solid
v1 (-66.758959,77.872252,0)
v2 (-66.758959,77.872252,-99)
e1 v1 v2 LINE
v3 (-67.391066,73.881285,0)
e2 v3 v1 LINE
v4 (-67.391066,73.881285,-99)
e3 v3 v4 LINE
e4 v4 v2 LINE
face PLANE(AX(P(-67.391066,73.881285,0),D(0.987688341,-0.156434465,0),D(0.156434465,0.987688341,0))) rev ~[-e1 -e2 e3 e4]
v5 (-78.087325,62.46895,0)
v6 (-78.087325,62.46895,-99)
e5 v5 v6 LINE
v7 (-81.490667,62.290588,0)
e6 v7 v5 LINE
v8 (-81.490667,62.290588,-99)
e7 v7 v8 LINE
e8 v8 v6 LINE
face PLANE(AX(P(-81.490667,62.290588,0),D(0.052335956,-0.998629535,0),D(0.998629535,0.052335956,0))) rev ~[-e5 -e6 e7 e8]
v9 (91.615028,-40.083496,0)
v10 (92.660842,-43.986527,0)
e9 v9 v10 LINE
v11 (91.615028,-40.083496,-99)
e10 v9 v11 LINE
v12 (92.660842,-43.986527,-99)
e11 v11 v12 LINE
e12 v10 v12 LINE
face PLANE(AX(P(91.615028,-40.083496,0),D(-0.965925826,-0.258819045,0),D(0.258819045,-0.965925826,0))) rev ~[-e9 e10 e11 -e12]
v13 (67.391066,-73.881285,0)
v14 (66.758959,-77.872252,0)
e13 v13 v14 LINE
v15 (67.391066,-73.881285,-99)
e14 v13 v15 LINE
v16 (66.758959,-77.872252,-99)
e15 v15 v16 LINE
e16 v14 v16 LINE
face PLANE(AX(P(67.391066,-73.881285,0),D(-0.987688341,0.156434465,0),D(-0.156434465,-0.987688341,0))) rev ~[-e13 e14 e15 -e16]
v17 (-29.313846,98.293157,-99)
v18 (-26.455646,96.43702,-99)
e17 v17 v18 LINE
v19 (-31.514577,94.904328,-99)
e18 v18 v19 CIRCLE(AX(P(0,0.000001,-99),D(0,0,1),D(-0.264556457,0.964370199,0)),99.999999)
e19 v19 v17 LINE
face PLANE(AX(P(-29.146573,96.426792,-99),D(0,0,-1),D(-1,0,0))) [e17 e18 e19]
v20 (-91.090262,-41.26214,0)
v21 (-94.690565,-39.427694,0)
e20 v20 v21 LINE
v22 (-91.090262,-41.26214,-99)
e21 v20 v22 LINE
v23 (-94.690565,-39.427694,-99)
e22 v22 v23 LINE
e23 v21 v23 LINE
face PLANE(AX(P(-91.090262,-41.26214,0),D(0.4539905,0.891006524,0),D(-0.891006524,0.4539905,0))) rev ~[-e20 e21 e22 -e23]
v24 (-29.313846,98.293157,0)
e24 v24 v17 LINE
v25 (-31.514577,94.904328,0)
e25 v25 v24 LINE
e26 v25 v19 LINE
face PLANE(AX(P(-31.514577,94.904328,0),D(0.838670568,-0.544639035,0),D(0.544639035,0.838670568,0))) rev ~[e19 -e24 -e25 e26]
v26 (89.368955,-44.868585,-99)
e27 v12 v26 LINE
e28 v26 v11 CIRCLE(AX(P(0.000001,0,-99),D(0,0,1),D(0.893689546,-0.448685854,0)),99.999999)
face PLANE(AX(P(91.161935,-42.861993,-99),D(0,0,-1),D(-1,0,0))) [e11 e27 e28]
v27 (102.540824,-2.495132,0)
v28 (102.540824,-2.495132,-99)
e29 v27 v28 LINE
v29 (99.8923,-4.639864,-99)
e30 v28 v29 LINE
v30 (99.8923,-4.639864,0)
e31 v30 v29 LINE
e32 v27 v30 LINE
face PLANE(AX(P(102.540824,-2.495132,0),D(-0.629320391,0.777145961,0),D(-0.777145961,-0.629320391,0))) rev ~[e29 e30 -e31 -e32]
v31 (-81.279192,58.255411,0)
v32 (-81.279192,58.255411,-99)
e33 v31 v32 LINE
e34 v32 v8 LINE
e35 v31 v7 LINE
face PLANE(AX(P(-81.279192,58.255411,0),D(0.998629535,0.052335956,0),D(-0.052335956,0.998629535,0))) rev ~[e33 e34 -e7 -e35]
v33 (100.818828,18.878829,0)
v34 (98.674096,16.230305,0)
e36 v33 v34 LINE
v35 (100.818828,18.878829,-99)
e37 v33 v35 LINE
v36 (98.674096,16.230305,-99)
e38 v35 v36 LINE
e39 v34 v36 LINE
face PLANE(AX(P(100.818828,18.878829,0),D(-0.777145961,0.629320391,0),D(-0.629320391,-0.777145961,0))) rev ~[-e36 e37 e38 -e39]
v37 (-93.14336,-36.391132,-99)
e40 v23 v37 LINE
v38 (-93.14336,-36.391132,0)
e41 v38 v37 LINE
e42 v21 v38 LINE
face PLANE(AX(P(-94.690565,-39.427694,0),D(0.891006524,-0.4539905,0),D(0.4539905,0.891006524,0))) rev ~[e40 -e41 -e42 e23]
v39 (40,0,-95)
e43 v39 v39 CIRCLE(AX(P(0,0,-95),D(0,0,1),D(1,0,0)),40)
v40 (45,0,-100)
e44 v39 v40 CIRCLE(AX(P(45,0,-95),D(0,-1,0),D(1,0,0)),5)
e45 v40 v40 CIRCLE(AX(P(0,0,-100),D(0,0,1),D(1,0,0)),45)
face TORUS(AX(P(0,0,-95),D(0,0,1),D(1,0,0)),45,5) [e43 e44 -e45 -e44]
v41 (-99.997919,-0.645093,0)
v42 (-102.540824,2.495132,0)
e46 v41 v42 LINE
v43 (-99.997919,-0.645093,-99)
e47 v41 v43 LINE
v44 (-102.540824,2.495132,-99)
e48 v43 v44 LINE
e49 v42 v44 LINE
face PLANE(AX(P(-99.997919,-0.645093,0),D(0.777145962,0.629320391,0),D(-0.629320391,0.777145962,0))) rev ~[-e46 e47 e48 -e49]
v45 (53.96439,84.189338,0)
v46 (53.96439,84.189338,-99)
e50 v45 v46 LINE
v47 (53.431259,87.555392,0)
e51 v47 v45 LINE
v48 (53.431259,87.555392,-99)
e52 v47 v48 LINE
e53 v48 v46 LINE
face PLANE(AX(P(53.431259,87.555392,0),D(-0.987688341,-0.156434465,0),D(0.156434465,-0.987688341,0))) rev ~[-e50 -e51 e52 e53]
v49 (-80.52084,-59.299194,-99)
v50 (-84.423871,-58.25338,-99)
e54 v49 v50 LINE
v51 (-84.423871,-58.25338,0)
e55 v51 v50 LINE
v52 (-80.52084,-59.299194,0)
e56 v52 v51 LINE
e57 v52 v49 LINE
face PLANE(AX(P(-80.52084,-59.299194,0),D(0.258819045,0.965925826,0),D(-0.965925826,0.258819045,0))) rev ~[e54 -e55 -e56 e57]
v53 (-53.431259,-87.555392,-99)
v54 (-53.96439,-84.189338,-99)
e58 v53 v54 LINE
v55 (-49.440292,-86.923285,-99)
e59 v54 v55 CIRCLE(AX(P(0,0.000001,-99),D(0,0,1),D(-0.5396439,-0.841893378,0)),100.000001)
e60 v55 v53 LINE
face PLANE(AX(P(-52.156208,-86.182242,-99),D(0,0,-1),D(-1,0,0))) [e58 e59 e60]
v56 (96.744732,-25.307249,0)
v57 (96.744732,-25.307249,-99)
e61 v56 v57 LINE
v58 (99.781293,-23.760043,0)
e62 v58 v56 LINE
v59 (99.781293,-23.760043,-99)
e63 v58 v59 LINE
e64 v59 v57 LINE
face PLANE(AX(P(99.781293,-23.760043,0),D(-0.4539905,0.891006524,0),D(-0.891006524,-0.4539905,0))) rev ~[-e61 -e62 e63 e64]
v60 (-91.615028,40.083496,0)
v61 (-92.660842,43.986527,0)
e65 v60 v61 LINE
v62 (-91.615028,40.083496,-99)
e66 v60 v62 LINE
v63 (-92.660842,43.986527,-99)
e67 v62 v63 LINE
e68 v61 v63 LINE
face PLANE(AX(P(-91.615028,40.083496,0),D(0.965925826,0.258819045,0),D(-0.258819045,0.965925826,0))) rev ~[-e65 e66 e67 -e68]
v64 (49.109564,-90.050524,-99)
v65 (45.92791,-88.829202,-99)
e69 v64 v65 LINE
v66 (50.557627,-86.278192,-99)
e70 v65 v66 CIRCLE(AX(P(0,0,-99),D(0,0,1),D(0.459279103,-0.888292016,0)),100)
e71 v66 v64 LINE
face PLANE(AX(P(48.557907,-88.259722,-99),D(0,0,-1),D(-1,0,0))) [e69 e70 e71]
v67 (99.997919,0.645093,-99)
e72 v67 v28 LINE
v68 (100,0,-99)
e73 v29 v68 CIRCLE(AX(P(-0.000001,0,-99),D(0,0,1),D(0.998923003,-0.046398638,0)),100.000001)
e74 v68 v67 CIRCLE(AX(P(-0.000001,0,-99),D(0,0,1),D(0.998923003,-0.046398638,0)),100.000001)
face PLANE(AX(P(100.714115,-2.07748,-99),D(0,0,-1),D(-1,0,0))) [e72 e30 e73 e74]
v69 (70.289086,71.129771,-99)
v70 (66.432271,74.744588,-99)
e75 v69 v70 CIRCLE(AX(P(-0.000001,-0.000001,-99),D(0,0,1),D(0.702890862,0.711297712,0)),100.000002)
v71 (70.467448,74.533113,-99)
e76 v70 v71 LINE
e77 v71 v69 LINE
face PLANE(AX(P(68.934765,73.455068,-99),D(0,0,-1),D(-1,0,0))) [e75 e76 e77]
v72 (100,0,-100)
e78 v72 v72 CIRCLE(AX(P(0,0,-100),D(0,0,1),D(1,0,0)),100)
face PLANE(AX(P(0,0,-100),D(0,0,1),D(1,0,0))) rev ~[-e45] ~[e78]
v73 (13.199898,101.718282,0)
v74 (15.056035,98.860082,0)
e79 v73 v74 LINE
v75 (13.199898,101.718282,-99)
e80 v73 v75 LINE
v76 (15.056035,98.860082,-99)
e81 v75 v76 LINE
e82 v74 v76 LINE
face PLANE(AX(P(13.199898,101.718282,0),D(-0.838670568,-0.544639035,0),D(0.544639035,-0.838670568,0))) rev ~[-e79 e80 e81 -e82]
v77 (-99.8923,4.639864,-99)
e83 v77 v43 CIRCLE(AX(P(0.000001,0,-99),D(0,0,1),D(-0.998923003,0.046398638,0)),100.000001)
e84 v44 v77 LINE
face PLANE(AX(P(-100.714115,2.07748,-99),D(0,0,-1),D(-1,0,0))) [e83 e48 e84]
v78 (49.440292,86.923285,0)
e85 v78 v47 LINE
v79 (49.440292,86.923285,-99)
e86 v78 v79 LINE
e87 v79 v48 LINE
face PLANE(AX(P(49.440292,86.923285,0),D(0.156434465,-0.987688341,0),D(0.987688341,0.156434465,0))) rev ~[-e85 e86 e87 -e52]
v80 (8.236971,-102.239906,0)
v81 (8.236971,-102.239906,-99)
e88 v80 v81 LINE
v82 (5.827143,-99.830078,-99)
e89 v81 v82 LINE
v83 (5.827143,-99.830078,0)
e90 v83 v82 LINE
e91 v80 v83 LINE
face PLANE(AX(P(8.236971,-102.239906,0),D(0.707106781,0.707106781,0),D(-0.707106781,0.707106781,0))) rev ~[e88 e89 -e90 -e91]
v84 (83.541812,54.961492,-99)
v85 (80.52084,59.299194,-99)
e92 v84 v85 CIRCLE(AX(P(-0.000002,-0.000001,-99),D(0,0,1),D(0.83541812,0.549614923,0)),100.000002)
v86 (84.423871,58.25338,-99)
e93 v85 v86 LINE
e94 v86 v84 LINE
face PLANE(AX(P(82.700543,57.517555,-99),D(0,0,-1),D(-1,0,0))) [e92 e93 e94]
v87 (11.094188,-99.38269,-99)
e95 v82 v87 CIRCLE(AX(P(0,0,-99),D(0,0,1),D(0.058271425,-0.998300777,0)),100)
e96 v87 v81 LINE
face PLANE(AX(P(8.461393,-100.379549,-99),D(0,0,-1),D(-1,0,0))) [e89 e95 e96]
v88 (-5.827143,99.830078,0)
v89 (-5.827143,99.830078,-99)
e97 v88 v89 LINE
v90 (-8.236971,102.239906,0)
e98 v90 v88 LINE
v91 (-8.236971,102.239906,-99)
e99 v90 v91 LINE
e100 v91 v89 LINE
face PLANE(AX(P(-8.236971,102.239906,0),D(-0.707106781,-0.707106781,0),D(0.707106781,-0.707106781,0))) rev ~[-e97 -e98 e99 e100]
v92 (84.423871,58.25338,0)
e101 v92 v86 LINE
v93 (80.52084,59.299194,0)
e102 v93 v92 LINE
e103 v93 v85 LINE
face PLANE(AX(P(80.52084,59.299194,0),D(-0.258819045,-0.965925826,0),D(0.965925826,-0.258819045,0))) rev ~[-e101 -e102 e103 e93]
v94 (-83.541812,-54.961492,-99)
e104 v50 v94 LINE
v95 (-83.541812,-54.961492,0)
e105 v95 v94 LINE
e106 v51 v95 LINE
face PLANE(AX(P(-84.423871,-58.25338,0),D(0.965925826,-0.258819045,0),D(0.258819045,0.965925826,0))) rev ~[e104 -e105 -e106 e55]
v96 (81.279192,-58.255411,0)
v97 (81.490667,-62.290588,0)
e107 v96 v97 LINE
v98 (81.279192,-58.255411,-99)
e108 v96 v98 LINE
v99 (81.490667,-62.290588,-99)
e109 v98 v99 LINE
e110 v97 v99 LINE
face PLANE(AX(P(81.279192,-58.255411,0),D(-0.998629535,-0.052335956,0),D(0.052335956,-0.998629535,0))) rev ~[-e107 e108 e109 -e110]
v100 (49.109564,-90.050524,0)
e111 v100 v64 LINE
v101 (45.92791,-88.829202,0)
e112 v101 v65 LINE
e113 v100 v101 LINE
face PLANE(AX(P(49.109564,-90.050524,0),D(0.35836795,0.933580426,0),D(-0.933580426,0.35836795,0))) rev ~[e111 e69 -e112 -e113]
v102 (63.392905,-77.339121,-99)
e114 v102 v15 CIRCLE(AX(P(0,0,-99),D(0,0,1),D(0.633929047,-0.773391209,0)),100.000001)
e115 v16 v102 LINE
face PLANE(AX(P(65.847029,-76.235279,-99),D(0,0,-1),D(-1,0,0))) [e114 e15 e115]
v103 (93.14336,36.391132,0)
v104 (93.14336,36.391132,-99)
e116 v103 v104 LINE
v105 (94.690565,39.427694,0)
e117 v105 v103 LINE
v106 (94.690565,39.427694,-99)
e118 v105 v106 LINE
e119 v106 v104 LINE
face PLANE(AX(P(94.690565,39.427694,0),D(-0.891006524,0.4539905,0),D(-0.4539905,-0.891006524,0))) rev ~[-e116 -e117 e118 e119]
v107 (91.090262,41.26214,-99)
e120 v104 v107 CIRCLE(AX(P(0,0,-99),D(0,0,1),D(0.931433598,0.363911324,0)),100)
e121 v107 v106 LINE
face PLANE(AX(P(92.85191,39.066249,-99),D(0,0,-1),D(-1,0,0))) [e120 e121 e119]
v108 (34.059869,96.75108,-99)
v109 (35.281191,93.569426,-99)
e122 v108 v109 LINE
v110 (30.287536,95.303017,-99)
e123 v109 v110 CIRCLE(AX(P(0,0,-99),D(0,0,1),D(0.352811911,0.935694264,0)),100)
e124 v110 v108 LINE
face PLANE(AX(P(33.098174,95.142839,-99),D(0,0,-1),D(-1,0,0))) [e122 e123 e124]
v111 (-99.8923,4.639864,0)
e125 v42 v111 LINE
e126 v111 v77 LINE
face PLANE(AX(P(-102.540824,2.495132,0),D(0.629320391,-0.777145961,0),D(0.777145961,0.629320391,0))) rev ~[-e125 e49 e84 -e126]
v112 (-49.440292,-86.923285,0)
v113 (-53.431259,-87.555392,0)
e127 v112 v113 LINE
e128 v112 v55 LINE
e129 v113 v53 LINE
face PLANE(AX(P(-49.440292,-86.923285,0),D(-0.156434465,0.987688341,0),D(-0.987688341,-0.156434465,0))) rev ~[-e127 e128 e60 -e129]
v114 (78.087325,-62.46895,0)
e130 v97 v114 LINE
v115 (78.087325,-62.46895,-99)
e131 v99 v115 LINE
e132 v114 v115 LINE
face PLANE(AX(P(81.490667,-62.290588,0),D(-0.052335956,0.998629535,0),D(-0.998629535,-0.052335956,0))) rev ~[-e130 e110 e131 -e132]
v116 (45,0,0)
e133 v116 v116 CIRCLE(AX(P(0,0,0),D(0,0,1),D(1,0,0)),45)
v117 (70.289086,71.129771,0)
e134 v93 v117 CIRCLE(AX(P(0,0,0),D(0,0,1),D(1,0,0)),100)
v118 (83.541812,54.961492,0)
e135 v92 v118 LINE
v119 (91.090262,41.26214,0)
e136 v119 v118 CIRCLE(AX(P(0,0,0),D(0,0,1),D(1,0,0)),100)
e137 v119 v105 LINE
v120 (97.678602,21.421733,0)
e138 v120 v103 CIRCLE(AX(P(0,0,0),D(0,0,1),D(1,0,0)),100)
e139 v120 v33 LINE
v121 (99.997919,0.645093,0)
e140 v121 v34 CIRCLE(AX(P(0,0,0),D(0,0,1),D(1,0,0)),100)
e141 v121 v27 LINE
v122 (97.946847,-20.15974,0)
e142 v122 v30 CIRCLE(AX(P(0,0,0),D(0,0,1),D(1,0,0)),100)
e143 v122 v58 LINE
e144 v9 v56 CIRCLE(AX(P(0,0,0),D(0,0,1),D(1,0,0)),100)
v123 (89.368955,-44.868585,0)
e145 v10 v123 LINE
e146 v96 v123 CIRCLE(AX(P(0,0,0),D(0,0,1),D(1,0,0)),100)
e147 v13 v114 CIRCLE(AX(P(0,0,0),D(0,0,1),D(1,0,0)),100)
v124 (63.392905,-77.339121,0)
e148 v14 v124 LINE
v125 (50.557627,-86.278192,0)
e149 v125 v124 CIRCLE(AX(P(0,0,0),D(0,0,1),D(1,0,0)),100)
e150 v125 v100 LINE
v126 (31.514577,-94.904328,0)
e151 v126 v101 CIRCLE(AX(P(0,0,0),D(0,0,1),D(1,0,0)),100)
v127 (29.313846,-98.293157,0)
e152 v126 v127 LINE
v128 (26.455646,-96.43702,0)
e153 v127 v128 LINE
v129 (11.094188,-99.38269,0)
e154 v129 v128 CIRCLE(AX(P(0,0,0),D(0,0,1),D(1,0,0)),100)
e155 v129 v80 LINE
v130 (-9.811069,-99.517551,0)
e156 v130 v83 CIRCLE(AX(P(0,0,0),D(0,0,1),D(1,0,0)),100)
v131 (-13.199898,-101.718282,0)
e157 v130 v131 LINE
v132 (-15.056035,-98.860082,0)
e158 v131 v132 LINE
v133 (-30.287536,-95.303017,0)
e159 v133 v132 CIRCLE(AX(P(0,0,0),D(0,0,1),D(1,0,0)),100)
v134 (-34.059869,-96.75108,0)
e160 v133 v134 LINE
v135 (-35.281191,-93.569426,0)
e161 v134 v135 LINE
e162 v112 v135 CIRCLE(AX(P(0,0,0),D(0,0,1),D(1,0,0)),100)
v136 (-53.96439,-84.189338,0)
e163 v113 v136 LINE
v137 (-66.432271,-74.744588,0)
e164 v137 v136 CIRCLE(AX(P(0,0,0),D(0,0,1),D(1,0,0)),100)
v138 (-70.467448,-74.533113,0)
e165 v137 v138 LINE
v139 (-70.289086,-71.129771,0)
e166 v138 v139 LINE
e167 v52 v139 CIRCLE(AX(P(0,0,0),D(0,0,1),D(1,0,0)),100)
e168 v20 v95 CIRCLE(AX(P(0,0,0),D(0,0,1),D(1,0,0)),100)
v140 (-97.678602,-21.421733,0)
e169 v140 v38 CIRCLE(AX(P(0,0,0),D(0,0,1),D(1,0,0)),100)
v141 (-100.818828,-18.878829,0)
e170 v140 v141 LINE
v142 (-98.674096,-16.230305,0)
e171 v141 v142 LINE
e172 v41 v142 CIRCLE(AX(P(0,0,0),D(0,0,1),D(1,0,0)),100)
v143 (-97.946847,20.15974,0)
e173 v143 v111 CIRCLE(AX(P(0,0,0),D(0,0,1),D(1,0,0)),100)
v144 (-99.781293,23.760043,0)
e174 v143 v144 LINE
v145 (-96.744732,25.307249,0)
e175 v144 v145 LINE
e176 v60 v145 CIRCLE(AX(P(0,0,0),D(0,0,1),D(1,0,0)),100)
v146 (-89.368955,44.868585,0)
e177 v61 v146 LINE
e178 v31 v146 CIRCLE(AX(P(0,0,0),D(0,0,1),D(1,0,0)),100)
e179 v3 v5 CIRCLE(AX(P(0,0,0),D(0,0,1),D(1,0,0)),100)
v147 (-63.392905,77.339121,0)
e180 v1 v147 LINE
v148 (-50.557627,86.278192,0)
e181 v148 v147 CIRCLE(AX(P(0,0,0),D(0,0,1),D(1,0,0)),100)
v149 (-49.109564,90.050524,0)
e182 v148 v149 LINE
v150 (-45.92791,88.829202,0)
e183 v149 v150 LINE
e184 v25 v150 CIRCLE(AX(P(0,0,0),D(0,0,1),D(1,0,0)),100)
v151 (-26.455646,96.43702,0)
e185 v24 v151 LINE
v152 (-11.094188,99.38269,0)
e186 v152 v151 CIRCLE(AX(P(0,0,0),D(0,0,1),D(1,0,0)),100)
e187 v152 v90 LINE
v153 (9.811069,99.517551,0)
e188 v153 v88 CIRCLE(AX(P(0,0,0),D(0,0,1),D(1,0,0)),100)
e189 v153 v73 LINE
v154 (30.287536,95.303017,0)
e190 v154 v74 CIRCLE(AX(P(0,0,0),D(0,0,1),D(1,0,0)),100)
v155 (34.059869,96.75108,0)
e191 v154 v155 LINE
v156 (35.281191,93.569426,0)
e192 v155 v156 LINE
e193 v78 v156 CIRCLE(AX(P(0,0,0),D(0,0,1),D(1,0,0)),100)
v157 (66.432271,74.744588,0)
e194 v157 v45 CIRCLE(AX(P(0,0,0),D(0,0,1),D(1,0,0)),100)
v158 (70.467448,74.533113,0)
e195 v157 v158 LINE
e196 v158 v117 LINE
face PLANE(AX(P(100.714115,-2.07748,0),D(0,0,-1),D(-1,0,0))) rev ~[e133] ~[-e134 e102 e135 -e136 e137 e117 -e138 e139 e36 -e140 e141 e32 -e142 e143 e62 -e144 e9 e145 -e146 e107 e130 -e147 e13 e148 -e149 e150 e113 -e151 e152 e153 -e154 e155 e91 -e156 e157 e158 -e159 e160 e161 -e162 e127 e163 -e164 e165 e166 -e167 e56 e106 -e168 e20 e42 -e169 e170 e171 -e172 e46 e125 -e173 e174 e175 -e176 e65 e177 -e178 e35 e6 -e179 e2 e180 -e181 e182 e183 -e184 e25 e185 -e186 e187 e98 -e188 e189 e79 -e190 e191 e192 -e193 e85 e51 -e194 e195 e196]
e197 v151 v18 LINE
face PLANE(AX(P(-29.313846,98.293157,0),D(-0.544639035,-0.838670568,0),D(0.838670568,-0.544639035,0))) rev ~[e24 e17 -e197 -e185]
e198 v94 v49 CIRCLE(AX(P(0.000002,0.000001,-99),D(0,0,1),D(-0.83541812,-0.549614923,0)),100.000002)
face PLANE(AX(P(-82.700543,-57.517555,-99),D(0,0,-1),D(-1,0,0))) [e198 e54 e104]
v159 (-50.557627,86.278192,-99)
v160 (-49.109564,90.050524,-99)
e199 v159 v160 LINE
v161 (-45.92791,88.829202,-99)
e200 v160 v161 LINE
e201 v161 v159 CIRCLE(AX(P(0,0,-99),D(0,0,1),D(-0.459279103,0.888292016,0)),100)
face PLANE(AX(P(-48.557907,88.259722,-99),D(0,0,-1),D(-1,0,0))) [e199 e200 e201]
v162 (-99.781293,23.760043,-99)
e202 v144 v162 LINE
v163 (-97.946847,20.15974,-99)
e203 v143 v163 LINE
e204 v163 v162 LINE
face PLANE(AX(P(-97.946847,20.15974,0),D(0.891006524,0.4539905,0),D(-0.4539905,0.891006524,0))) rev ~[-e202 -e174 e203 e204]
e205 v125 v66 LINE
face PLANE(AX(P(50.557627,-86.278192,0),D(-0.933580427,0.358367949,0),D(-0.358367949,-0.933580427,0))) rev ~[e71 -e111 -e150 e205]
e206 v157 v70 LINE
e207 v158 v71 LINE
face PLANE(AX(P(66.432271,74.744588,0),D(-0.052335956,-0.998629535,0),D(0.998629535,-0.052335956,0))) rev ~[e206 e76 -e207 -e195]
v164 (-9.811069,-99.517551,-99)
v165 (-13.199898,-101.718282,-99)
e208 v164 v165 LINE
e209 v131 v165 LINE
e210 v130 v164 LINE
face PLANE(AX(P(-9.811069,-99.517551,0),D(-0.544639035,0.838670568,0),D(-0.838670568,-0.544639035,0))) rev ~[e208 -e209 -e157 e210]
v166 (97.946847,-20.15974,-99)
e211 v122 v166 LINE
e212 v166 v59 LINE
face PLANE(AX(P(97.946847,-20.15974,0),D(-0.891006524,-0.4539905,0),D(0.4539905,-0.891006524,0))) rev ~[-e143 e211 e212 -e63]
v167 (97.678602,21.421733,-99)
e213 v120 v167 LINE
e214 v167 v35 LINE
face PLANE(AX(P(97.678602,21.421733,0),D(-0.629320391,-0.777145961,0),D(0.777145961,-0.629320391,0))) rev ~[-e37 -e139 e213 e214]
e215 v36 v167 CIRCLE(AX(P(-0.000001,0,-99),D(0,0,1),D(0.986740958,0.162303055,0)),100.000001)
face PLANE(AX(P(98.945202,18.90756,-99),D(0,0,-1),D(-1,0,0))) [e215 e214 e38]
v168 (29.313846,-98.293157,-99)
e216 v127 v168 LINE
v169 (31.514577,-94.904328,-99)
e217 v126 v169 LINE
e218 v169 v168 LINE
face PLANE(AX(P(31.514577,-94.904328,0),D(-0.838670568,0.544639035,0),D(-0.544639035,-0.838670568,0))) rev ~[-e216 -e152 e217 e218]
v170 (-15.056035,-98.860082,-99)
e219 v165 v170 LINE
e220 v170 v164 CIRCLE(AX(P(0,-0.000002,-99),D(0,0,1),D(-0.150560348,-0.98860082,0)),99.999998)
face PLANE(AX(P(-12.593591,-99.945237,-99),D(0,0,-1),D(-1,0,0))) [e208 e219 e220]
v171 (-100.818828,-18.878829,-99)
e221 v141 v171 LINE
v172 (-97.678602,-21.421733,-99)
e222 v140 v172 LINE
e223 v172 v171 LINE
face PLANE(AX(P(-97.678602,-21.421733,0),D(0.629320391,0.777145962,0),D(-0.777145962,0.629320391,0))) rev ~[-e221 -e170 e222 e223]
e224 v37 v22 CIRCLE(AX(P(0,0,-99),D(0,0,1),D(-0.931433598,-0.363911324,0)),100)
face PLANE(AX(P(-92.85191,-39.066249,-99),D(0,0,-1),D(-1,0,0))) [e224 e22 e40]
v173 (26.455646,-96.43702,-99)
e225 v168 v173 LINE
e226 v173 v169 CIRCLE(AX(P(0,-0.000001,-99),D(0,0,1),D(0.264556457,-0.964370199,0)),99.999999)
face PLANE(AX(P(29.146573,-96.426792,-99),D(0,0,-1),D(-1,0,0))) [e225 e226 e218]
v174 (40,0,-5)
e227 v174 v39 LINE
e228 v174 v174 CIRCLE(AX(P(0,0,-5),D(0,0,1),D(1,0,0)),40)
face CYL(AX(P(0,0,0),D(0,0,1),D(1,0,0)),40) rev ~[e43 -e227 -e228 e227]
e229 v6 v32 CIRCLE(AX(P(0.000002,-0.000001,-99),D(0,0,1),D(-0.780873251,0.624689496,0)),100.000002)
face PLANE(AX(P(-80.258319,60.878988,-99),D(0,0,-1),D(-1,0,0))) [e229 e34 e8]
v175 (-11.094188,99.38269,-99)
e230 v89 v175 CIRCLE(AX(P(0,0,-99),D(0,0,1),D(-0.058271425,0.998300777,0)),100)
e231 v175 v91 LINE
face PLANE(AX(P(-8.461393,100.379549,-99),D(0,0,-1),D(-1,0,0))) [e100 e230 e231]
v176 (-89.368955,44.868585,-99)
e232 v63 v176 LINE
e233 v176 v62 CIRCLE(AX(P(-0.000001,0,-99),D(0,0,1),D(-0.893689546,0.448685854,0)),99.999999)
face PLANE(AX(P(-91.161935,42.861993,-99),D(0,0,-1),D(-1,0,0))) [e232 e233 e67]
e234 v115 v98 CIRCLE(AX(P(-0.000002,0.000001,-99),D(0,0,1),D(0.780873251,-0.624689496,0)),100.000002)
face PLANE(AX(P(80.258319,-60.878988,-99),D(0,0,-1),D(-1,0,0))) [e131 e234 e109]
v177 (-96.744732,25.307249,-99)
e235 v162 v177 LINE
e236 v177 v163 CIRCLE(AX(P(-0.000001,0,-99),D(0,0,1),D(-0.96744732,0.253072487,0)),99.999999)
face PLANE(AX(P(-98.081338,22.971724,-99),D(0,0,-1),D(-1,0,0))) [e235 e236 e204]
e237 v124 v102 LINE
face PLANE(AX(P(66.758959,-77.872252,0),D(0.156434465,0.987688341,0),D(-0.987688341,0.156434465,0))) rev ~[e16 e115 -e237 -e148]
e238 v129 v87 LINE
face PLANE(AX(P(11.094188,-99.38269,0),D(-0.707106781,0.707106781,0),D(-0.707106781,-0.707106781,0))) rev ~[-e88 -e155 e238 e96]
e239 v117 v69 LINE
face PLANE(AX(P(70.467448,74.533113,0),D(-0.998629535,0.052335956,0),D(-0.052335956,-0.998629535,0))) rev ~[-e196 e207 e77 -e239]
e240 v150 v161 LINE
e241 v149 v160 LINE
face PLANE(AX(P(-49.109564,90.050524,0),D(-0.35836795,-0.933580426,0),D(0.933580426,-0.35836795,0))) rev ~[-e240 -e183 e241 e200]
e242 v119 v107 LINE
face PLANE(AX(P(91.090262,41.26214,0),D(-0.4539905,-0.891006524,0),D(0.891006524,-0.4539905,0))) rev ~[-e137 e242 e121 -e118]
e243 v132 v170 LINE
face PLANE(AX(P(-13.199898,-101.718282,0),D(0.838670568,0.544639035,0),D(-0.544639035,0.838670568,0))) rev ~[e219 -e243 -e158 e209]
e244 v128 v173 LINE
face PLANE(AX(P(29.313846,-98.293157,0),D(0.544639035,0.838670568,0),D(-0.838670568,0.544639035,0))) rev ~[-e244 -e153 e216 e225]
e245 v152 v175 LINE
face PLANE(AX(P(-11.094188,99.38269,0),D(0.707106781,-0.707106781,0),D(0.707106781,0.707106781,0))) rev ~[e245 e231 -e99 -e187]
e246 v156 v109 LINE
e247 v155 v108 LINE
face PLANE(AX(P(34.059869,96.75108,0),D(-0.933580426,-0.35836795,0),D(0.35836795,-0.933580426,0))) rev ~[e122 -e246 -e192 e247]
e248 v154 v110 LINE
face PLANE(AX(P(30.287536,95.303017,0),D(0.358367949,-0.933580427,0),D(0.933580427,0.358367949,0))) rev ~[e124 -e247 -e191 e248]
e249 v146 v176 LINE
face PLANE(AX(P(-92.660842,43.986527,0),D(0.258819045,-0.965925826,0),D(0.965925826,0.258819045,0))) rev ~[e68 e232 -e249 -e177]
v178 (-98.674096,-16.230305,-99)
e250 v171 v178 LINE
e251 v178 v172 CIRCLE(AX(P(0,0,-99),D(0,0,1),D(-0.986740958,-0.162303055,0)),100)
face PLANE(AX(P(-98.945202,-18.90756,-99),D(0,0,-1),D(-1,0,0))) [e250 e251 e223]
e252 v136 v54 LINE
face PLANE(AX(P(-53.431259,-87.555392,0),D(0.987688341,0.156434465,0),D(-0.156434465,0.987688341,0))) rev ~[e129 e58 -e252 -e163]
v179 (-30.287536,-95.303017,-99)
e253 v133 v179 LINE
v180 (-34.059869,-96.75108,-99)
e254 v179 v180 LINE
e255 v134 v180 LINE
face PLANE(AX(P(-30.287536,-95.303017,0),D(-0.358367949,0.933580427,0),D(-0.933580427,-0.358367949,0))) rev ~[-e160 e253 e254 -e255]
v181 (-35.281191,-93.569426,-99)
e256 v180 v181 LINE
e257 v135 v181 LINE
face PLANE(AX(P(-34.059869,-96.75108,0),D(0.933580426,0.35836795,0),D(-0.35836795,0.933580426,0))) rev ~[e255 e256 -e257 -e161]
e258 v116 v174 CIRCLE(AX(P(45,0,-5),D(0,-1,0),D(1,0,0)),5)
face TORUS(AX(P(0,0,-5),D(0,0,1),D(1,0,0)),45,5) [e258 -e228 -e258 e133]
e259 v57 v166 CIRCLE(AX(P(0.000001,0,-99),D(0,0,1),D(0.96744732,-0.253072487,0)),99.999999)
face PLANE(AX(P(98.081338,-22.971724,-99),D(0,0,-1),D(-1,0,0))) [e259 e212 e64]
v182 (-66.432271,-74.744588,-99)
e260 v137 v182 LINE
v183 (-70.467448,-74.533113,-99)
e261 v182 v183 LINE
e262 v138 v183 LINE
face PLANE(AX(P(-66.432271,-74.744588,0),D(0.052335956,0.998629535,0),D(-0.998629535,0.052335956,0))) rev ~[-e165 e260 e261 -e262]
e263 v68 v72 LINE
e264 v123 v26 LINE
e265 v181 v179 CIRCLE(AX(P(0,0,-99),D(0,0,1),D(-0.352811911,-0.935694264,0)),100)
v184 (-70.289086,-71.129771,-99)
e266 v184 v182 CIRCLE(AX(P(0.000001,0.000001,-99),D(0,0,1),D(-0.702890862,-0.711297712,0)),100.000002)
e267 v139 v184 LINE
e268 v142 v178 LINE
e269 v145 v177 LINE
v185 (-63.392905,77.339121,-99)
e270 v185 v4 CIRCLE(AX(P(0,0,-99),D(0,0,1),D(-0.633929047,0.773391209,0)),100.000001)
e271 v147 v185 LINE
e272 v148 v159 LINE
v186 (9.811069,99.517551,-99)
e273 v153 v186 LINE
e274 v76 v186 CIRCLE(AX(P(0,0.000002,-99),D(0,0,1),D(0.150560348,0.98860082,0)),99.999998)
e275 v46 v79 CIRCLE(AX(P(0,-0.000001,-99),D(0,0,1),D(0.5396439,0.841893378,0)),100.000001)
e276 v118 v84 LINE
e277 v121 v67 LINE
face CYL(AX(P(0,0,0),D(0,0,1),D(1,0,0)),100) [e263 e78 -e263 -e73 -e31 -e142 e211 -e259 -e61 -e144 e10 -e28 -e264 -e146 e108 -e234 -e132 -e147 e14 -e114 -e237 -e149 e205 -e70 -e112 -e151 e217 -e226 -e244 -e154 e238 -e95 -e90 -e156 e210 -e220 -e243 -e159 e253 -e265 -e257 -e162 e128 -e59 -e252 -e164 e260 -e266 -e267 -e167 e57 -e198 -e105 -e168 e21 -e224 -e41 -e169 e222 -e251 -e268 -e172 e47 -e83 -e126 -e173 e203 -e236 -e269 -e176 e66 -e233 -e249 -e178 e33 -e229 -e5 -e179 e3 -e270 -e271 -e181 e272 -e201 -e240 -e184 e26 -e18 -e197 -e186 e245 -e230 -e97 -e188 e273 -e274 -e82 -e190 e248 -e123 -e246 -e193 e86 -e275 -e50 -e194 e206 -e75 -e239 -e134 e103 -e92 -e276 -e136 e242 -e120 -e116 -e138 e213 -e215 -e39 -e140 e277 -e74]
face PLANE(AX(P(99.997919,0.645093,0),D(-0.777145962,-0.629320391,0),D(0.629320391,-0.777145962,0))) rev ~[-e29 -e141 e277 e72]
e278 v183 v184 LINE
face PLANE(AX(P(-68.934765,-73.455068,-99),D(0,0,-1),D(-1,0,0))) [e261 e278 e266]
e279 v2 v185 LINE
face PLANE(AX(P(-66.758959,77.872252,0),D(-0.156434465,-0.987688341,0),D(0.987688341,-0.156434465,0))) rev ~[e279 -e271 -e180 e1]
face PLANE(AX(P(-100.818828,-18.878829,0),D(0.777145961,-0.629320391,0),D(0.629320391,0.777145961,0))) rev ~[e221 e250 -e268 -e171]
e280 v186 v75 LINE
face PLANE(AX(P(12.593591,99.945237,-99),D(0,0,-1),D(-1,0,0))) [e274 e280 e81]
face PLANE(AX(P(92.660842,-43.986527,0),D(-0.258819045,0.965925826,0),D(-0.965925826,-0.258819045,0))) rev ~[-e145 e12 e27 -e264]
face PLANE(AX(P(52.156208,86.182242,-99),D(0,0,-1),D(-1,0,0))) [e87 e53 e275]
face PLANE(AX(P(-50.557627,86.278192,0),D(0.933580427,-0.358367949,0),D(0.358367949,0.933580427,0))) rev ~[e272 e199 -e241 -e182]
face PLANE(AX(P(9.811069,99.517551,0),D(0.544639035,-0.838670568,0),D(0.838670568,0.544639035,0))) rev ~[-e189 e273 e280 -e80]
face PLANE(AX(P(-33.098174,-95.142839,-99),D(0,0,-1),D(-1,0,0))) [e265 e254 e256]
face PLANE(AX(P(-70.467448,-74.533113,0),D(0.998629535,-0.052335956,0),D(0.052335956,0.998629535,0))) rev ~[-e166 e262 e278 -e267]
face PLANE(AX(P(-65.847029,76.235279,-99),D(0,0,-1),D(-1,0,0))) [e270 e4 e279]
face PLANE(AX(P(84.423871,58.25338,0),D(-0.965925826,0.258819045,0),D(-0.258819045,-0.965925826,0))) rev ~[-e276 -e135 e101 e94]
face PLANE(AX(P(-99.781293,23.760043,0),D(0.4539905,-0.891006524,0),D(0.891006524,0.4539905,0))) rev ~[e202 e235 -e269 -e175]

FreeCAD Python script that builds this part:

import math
import FreeCAD as App
import Part
import Sketcher
from FreeCAD import Vector
Q = App.Units.Quantity


def edges_at(feature, points):
    """Names of the edges that pass closest to the given points."""
    edges = feature.Shape.Edges
    near = lambda p: min(range(len(edges)), key=lambda i: edges[i].distToShape(Part.Vertex(*p))[0])
    return sorted({f"Edge{near(p) + 1}" for p in points})

doc = App.newDocument("Part")
body = doc.addObject("PartDesign::Body", "Body")

# Sketch on XY plane
sketch1 = body.newObject("Sketcher::SketchObject", "Sketch")
sketch1.AttachmentSupport = (doc.getObject("XY_Plane"), [""])
sketch1.MapMode = "FlatFace"
sketch1.addGeometry([
    Part.Circle(Vector(0, 0, 0), Vector(0, 0, 1), 100),
    Part.Circle(Vector(0, 0, 0), Vector(0, 0, 1), 50),
], False)
sketch1.addConstraint([
    Sketcher.Constraint("Coincident", 0, 3, -1, 1),
    Sketcher.Constraint("Coincident", 1, 3, -1, 1),
    Sketcher.Constraint("Diameter", 0, Q("200 mm")),
    Sketcher.Constraint("Diameter", 1, Q("100 mm")),
])
pad1 = body.newObject("PartDesign::Pad", "Pad")
pad1.Profile = sketch1
pad1.Length = 100
pad1.Reversed = True

# Sketch on XY plane
sketch2 = body.newObject("Sketcher::SketchObject", "Sketch001")
sketch2.AttachmentSupport = (doc.getObject("XY_Plane"), [""])
sketch2.MapMode = "FlatFace"
sketch2.addGeometry(Part.Circle(Vector(0, 0, 0), Vector(0, 0, 1), 50), False)
sketch2.addConstraint([
    Sketcher.Constraint("Coincident", 0, 3, -1, 1),
    Sketcher.Constraint("Diameter", 0, Q("100 mm")),
])
pad2 = body.newObject("PartDesign::Pad", "Pad001")
pad2.Profile = sketch2
pad2.Length = 100
pad2.Reversed = True

# Sketch on XY plane
sketch3 = body.newObject("Sketcher::SketchObject", "Sketch002")
sketch3.AttachmentSupport = (doc.getObject("XY_Plane"), [""])
sketch3.MapMode = "FlatFace"
sketch3.addGeometry(Part.Circle(Vector(0, 0, 0), Vector(0, 0, 1), 40), False)
sketch3.addConstraint([
    Sketcher.Constraint("Coincident", 0, 3, -1, 1),
    Sketcher.Constraint("Diameter", 0, Q("80 mm")),
])
pocket1 = body.newObject("PartDesign::Pocket", "Pocket")
pocket1.Profile = sketch3
pocket1.Length = 100
doc.recompute()

fillet = body.newObject("PartDesign::Fillet", "Fillet")
fillet.Base = (pocket1, edges_at(pocket1, [(-40, 0, 0)]))
fillet.Radius = 5
doc.recompute()

fillet2 = body.newObject("PartDesign::Fillet", "Fillet001")
fillet2.Base = (fillet, edges_at(fillet, [(-40, 0, -100)]))
fillet2.Radius = 5

# Sketch on XY plane
sketch4 = body.newObject("Sketcher::SketchObject", "Sketch003")
sketch4.AttachmentSupport = (doc.getObject("XY_Plane"), [""])
sketch4.MapMode = "FlatFace"
sketch4.addGeometry([
    Part.LineSegment(Vector(-8.2, 102.2, 0), Vector(-11.1, 99.4, 0)),  # 0
    Part.ArcOfCircle(Part.Circle(Vector(0, 0, 0), Vector(0, 0, 1), 100), math.radians(93.34), math.radians(96.37)),  # 1
    Part.LineSegment(Vector(-5.8, 99.8, 0), Vector(-8.2, 102.2, 0)),  # 2
    Part.LineSegment(Vector(15.1, 98.9, 0), Vector(13.2, 101.7, 0)),  # 3
    Part.LineSegment(Vector(13.2, 101.7, 0), Vector(9.8, 99.5, 0)),  # 4
    Part.ArcOfCircle(Part.Circle(Vector(0, 0, 0), Vector(0, 0, 1), 100), math.radians(81.34), math.radians(84.37)),  # 5
    Part.LineSegment(Vector(35.3, 93.6, 0), Vector(34.1, 96.8, 0)),  # 6
    Part.LineSegment(Vector(34.1, 96.8, 0), Vector(30.3, 95.3, 0)),  # 7
    Part.ArcOfCircle(Part.Circle(Vector(0, 0, 0), Vector(0, 0, 1), 100), math.radians(69.34), math.radians(72.37)),  # 8
    Part.LineSegment(Vector(54, 84.2, 0), Vector(53.4, 87.6, 0)),  # 9
    Part.LineSegment(Vector(53.4, 87.6, 0), Vector(49.4, 86.9, 0)),  # 10
    Part.ArcOfCircle(Part.Circle(Vector(0, 0, 0), Vector(0, 0, 1), 100), math.radians(57.34), math.radians(60.37)),  # 11
    Part.LineSegment(Vector(70.3, 71.1, 0), Vector(70.5, 74.5, 0)),  # 12
    Part.LineSegment(Vector(70.5, 74.5, 0), Vector(66.4, 74.7, 0)),  # 13
    Part.ArcOfCircle(Part.Circle(Vector(0, 0, 0), Vector(0, 0, 1), 100), math.radians(45.34), math.radians(48.37)),  # 14
    Part.LineSegment(Vector(83.5, 55, 0), Vector(84.4, 58.3, 0)),  # 15
    Part.LineSegment(Vector(84.4, 58.3, 0), Vector(80.5, 59.3, 0)),  # 16
    Part.ArcOfCircle(Part.Circle(Vector(0, 0, 0), Vector(0, 0, 1), 100), math.radians(33.34), math.radians(36.37)),  # 17
    Part.LineSegment(Vector(93.1, 36.4, 0), Vector(94.7, 39.4, 0)),  # 18
    Part.LineSegment(Vector(94.7, 39.4, 0), Vector(91.1, 41.3, 0)),  # 19
    Part.ArcOfCircle(Part.Circle(Vector(0, 0, 0), Vector(0, 0, 1), 100), math.radians(21.34), math.radians(24.37)),  # 20
    Part.LineSegment(Vector(98.7, 16.2, 0), Vector(100.8, 18.9, 0)),  # 21
    Part.LineSegment(Vector(100.8, 18.9, 0), Vector(97.7, 21.4, 0)),  # 22
    Part.ArcOfCircle(Part.Circle(Vector(0, 0, 0), Vector(0, 0, 1), 100), math.radians(9.34), math.radians(12.37)),  # 23
    Part.LineSegment(Vector(99.9, -4.6, 0), Vector(102.5, -2.5, 0)),  # 24
    Part.LineSegment(Vector(102.5, -2.5, 0), Vector(100, 0.6, 0)),  # 25
    Part.ArcOfCircle(Part.Circle(Vector(0, 0, 0), Vector(0, 0, 1), 100), math.radians(-2.66), math.radians(0.37)),  # 26
    Part.LineSegment(Vector(96.7, -25.3, 0), Vector(99.8, -23.8, 0)),  # 27
    Part.LineSegment(Vector(99.8, -23.8, 0), Vector(97.9, -20.2, 0)),  # 28
    Part.ArcOfCircle(Part.Circle(Vector(0, 0, 0), Vector(0, 0, 1), 100), math.radians(-14.66), math.radians(-11.63)),  # 29
    Part.LineSegment(Vector(89.4, -44.9, 0), Vector(92.7, -44, 0)),  # 30
    Part.LineSegment(Vector(92.7, -44, 0), Vector(91.6, -40.1, 0)),  # 31
    Part.ArcOfCircle(Part.Circle(Vector(0, 0, 0), Vector(0, 0, 1), 100), math.radians(-26.66), math.radians(-23.63)),  # 32
    Part.LineSegment(Vector(78.1, -62.5, 0), Vector(81.5, -62.3, 0)),  # 33
    Part.LineSegment(Vector(81.5, -62.3, 0), Vector(81.3, -58.3, 0)),  # 34
    Part.ArcOfCircle(Part.Circle(Vector(0, 0, 0), Vector(0, 0, 1), 100), math.radians(-38.66), math.radians(-35.63)),  # 35
    Part.LineSegment(Vector(63.4, -77.3, 0), Vector(66.8, -77.9, 0)),  # 36
    Part.LineSegment(Vector(66.8, -77.9, 0), Vector(67.4, -73.9, 0)),  # 37
    Part.ArcOfCircle(Part.Circle(Vector(0, 0, 0), Vector(0, 0, 1), 100), math.radians(-50.66), math.radians(-47.63)),  # 38
    Part.LineSegment(Vector(45.9, -88.8, 0), Vector(49.1, -90.1, 0)),  # 39
    Part.LineSegment(Vector(49.1, -90.1, 0), Vector(50.6, -86.3, 0)),  # 40
    Part.ArcOfCircle(Part.Circle(Vector(0, 0, 0), Vector(0, 0, 1), 100), math.radians(-62.66), math.radians(-59.63)),  # 41
    Part.LineSegment(Vector(26.5, -96.4, 0), Vector(29.3, -98.3, 0)),  # 42
    Part.LineSegment(Vector(29.3, -98.3, 0), Vector(31.5, -94.9, 0)),  # 43
    Part.ArcOfCircle(Part.Circle(Vector(0, 0, 0), Vector(0, 0, 1), 100), math.radians(-74.66), math.radians(-71.63)),  # 44
    Part.LineSegment(Vector(5.8, -99.8, 0), Vector(8.2, -102.2, 0)),  # 45
    Part.LineSegment(Vector(8.2, -102.2, 0), Vector(11.1, -99.4, 0)),  # 46
    Part.ArcOfCircle(Part.Circle(Vector(0, 0, 0), Vector(0, 0, 1), 100), math.radians(-86.66), math.radians(-83.63)),  # 47
    Part.LineSegment(Vector(-15.1, -98.9, 0), Vector(-13.2, -101.7, 0)),  # 48
    Part.LineSegment(Vector(-13.2, -101.7, 0), Vector(-9.8, -99.5, 0)),  # 49
    Part.ArcOfCircle(Part.Circle(Vector(0, 0, 0), Vector(0, 0, 1), 100), math.radians(-98.66), math.radians(-95.63)),  # 50
    Part.LineSegment(Vector(-35.3, -93.6, 0), Vector(-34.1, -96.8, 0)),  # 51
    Part.LineSegment(Vector(-34.1, -96.8, 0), Vector(-30.3, -95.3, 0)),  # 52
    Part.ArcOfCircle(Part.Circle(Vector(0, 0, 0), Vector(0, 0, 1), 100), math.radians(-110.66), math.radians(-107.63)),  # 53
    Part.LineSegment(Vector(-54, -84.2, 0), Vector(-53.4, -87.6, 0)),  # 54
    Part.LineSegment(Vector(-53.4, -87.6, 0), Vector(-49.4, -86.9, 0)),  # 55
    Part.ArcOfCircle(Part.Circle(Vector(0, 0, 0), Vector(0, 0, 1), 100), math.radians(-122.66), math.radians(-119.63)),  # 56
    Part.LineSegment(Vector(-70.3, -71.1, 0), Vector(-70.5, -74.5, 0)),  # 57
    Part.LineSegment(Vector(-70.5, -74.5, 0), Vector(-66.4, -74.7, 0)),  # 58
    Part.ArcOfCircle(Part.Circle(Vector(0, 0, 0), Vector(0, 0, 1), 100), math.radians(-134.66), math.radians(-131.63)),  # 59
    Part.LineSegment(Vector(-83.5, -55, 0), Vector(-84.4, -58.3, 0)),  # 60
    Part.LineSegment(Vector(-84.4, -58.3, 0), Vector(-80.5, -59.3, 0)),  # 61
    Part.ArcOfCircle(Part.Circle(Vector(0, 0, 0), Vector(0, 0, 1), 100), math.radians(-146.66), math.radians(-143.63)),  # 62
    Part.LineSegment(Vector(-93.1, -36.4, 0), Vector(-94.7, -39.4, 0)),  # 63
    Part.LineSegment(Vector(-94.7, -39.4, 0), Vector(-91.1, -41.3, 0)),  # 64
    Part.ArcOfCircle(Part.Circle(Vector(0, 0, 0), Vector(0, 0, 1), 100), math.radians(-158.66), math.radians(-155.63)),  # 65
    Part.LineSegment(Vector(-98.7, -16.2, 0), Vector(-100.8, -18.9, 0)),  # 66
    Part.LineSegment(Vector(-100.8, -18.9, 0), Vector(-97.7, -21.4, 0)),  # 67
    Part.ArcOfCircle(Part.Circle(Vector(0, 0, 0), Vector(0, 0, 1), 100), math.radians(-170.66), math.radians(-167.63)),  # 68
    Part.LineSegment(Vector(-99.9, 4.6, 0), Vector(-102.5, 2.5, 0)),  # 69
    Part.LineSegment(Vector(-102.5, 2.5, 0), Vector(-100, -0.6, 0)),  # 70
    Part.ArcOfCircle(Part.Circle(Vector(0, 0, 0), Vector(0, 0, 1), 100), math.radians(177.34), math.radians(180.37)),  # 71
    Part.LineSegment(Vector(-96.7, 25.3, 0), Vector(-99.8, 23.8, 0)),  # 72
    Part.LineSegment(Vector(-99.8, 23.8, 0), Vector(-97.9, 20.2, 0)),  # 73
    Part.ArcOfCircle(Part.Circle(Vector(0, 0, 0), Vector(0, 0, 1), 100), math.radians(165.34), math.radians(168.37)),  # 74
    Part.LineSegment(Vector(-89.4, 44.9, 0), Vector(-92.7, 44, 0)),  # 75
    Part.LineSegment(Vector(-92.7, 44, 0), Vector(-91.6, 40.1, 0)),  # 76
    Part.ArcOfCircle(Part.Circle(Vector(0, 0, 0), Vector(0, 0, 1), 100), math.radians(153.34), math.radians(156.37)),  # 77
    Part.LineSegment(Vector(-78.1, 62.5, 0), Vector(-81.5, 62.3, 0)),  # 78
    Part.LineSegment(Vector(-81.5, 62.3, 0), Vector(-81.3, 58.3, 0)),  # 79
    Part.ArcOfCircle(Part.Circle(Vector(0, 0, 0), Vector(0, 0, 1), 100), math.radians(141.34), math.radians(144.37)),  # 80
    Part.LineSegment(Vector(-63.4, 77.3, 0), Vector(-66.8, 77.9, 0)),  # 81
    Part.LineSegment(Vector(-66.8, 77.9, 0), Vector(-67.4, 73.9, 0)),  # 82
    Part.ArcOfCircle(Part.Circle(Vector(0, 0, 0), Vector(0, 0, 1), 100), math.radians(129.34), math.radians(132.37)),  # 83
    Part.LineSegment(Vector(-45.9, 88.8, 0), Vector(-49.1, 90.1, 0)),  # 84
    Part.LineSegment(Vector(-49.1, 90.1, 0), Vector(-50.6, 86.3, 0)),  # 85
    Part.ArcOfCircle(Part.Circle(Vector(0, 0, 0), Vector(0, 0, 1), 100), math.radians(117.34), math.radians(120.37)),  # 86
    Part.LineSegment(Vector(-26.5, 96.4, 0), Vector(-29.3, 98.3, 0)),  # 87
    Part.LineSegment(Vector(-29.3, 98.3, 0), Vector(-31.5, 94.9, 0)),  # 88
    Part.ArcOfCircle(Part.Circle(Vector(0, 0, 0), Vector(0, 0, 1), 100), math.radians(105.34), math.radians(108.37)),  # 89
], False)
sketch4.addConstraint([
    Sketcher.Constraint("Coincident", 0, 2, 1, 2),
    Sketcher.Constraint("Coincident", 1, 1, 2, 1),
    Sketcher.Constraint("Coincident", 2, 2, 0, 1),
    Sketcher.Constraint("Coincident", 3, 2, 4, 1),
    Sketcher.Constraint("Coincident", 4, 2, 5, 2),
    Sketcher.Constraint("Coincident", 5, 1, 3, 1),
    Sketcher.Constraint("Coincident", 6, 2, 7, 1),
    Sketcher.Constraint("Coincident", 7, 2, 8, 2),
    Sketcher.Constraint("Coincident", 8, 1, 6, 1),
    Sketcher.Constraint("Coincident", 9, 2, 10, 1),
    Sketcher.Constraint("Coincident", 10, 2, 11, 2),
    Sketcher.Constraint("Coincident", 11, 1, 9, 1),
    Sketcher.Constraint("Coincident", 12, 2, 13, 1),
    Sketcher.Constraint("Coincident", 13, 2, 14, 2),
    Sketcher.Constraint("Coincident", 14, 1, 12, 1),
    Sketcher.Constraint("Coincident", 15, 2, 16, 1),
    Sketcher.Constraint("Coincident", 16, 2, 17, 2),
    Sketcher.Constraint("Coincident", 17, 1, 15, 1),
    Sketcher.Constraint("Coincident", 18, 2, 19, 1),
    Sketcher.Constraint("Coincident", 19, 2, 20, 2),
    Sketcher.Constraint("Coincident", 20, 1, 18, 1),
    Sketcher.Constraint("Coincident", 21, 2, 22, 1),
    Sketcher.Constraint("Coincident", 22, 2, 23, 2),
    Sketcher.Constraint("Coincident", 23, 1, 21, 1),
    Sketcher.Constraint("Coincident", 24, 2, 25, 1),
    Sketcher.Constraint("Coincident", 25, 2, 26, 2),
    Sketcher.Constraint("Coincident", 26, 1, 24, 1),
    Sketcher.Constraint("Coincident", 27, 2, 28, 1),
    Sketcher.Constraint("Coincident", 28, 2, 29, 2),
    Sketcher.Constraint("Coincident", 29, 1, 27, 1),
    Sketcher.Constraint("Coincident", 30, 2, 31, 1),
    Sketcher.Constraint("Coincident", 31, 2, 32, 2),
    Sketcher.Constraint("Coincident", 32, 1, 30, 1),
    Sketcher.Constraint("Coincident", 33, 2, 34, 1),
    Sketcher.Constraint("Coincident", 34, 2, 35, 2),
    Sketcher.Constraint("Coincident", 35, 1, 33, 1),
    Sketcher.Constraint("Coincident", 36, 2, 37, 1),
    Sketcher.Constraint("Coincident", 37, 2, 38, 2),
    Sketcher.Constraint("Coincident", 38, 1, 36, 1),
    Sketcher.Constraint("Coincident", 39, 2, 40, 1),
    Sketcher.Constraint("Coincident", 40, 2, 41, 2),
    Sketcher.Constraint("Coincident", 41, 1, 39, 1),
    Sketcher.Constraint("Coincident", 42, 2, 43, 1),
    Sketcher.Constraint("Coincident", 43, 2, 44, 2),
    Sketcher.Constraint("Coincident", 44, 1, 42, 1),
    Sketcher.Constraint("Coincident", 45, 2, 46, 1),
    Sketcher.Constraint("Coincident", 46, 2, 47, 2),
    Sketcher.Constraint("Coincident", 47, 1, 45, 1),
    Sketcher.Constraint("Coincident", 48, 2, 49, 1),
    Sketcher.Constraint("Coincident", 49, 2, 50, 2),
    Sketcher.Constraint("Coincident", 50, 1, 48, 1),
    Sketcher.Constraint("Coincident", 51, 2, 52, 1),
    Sketcher.Constraint("Coincident", 52, 2, 53, 2),
    Sketcher.Constraint("Coincident", 53, 1, 51, 1),
    Sketcher.Constraint("Coincident", 54, 2, 55, 1),
    Sketcher.Constraint("Coincident", 55, 2, 56, 2),
    Sketcher.Constraint("Coincident", 56, 1, 54, 1),
    Sketcher.Constraint("Coincident", 57, 2, 58, 1),
    Sketcher.Constraint("Coincident", 58, 2, 59, 2),
    Sketcher.Constraint("Coincident", 59, 1, 57, 1),
    Sketcher.Constraint("Coincident", 60, 2, 61, 1),
    Sketcher.Constraint("Coincident", 61, 2, 62, 2),
    Sketcher.Constraint("Coincident", 62, 1, 60, 1),
    Sketcher.Constraint("Coincident", 63, 2, 64, 1),
    Sketcher.Constraint("Coincident", 64, 2, 65, 2),
    Sketcher.Constraint("Coincident", 65, 1, 63, 1),
    Sketcher.Constraint("Coincident", 66, 2, 67, 1),
    Sketcher.Constraint("Coincident", 67, 2, 68, 2),
    Sketcher.Constraint("Coincident", 68, 1, 66, 1),
    Sketcher.Constraint("Coincident", 69, 2, 70, 1),
    Sketcher.Constraint("Coincident", 70, 2, 71, 2),
    Sketcher.Constraint("Coincident", 71, 1, 69, 1),
    Sketcher.Constraint("Coincident", 72, 2, 73, 1),
    Sketcher.Constraint("Coincident", 73, 2, 74, 2),
    Sketcher.Constraint("Coincident", 74, 1, 72, 1),
    Sketcher.Constraint("Coincident", 75, 2, 76, 1),
    Sketcher.Constraint("Coincident", 76, 2, 77, 2),
    Sketcher.Constraint("Coincident", 77, 1, 75, 1),
    Sketcher.Constraint("Coincident", 78, 2, 79, 1),
    Sketcher.Constraint("Coincident", 79, 2, 80, 2),
    Sketcher.Constraint("Coincident", 80, 1, 78, 1),
    Sketcher.Constraint("Coincident", 81, 2, 82, 1),
    Sketcher.Constraint("Coincident", 82, 2, 83, 2),
    Sketcher.Constraint("Coincident", 83, 1, 81, 1),
    Sketcher.Constraint("Coincident", 84, 2, 85, 1),
    Sketcher.Constraint("Coincident", 85, 2, 86, 2),
    Sketcher.Constraint("Coincident", 86, 1, 84, 1),
    Sketcher.Constraint("Coincident", 87, 2, 88, 1),
    Sketcher.Constraint("Coincident", 88, 2, 89, 2),
    Sketcher.Constraint("Coincident", 89, 1, 87, 1),
    Sketcher.Constraint("Coincident", 1, 3, -1, 1),
    Sketcher.Constraint("Coincident", 5, 3, -1, 1),
    Sketcher.Constraint("Coincident", 8, 3, -1, 1),
    Sketcher.Constraint("Coincident", 11, 3, -1, 1),
    Sketcher.Constraint("Coincident", 14, 3, -1, 1),
    Sketcher.Constraint("Coincident", 17, 3, -1, 1),
    Sketcher.Constraint("Coincident", 20, 3, -1, 1),
    Sketcher.Constraint("Coincident", 23, 3, -1, 1),
    Sketcher.Constraint("Coincident", 26, 3, -1, 1),
    Sketcher.Constraint("Coincident", 29, 3, -1, 1),
    Sketcher.Constraint("Coincident", 32, 3, -1, 1),
    Sketcher.Constraint("Coincident", 35, 3, -1, 1),
    Sketcher.Constraint("Coincident", 38, 3, -1, 1),
    Sketcher.Constraint("Coincident", 41, 3, -1, 1),
    Sketcher.Constraint("Coincident", 44, 3, -1, 1),
    Sketcher.Constraint("Coincident", 47, 3, -1, 1),
    Sketcher.Constraint("Coincident", 50, 3, -1, 1),
    Sketcher.Constraint("Coincident", 53, 3, -1, 1),
    Sketcher.Constraint("Coincident", 56, 3, -1, 1),
    Sketcher.Constraint("Coincident", 59, 3, -1, 1),
    Sketcher.Constraint("Coincident", 62, 3, -1, 1),
    Sketcher.Constraint("Coincident", 65, 3, -1, 1),
    Sketcher.Constraint("Coincident", 68, 3, -1, 1),
    Sketcher.Constraint("Coincident", 71, 3, -1, 1),
    Sketcher.Constraint("Coincident", 74, 3, -1, 1),
    Sketcher.Constraint("Coincident", 77, 3, -1, 1),
    Sketcher.Constraint("Coincident", 80, 3, -1, 1),
    Sketcher.Constraint("Coincident", 83, 3, -1, 1),
    Sketcher.Constraint("Coincident", 86, 3, -1, 1),
    Sketcher.Constraint("Coincident", 89, 3, -1, 1),
    Sketcher.Constraint("Equal", 1, 8),
    Sketcher.Constraint("Equal", 8, 11),
    Sketcher.Constraint("Equal", 11, 14),
    Sketcher.Constraint("Equal", 14, 17),
    Sketcher.Constraint("Equal", 17, 20),
    Sketcher.Constraint("Equal", 20, 23),
    Sketcher.Constraint("Equal", 23, 26),
    Sketcher.Constraint("Equal", 26, 29),
    Sketcher.Constraint("Equal", 29, 32),
    Sketcher.Constraint("Equal", 26, 35),
    Sketcher.Constraint("Equal", 35, 38),
    Sketcher.Constraint("Equal", 38, 41),
    Sketcher.Constraint("Equal", 41, 44),
    Sketcher.Constraint("Equal", 44, 47),
    Sketcher.Constraint("Equal", 44, 50),
    Sketcher.Constraint("Equal", 47, 53),
    Sketcher.Constraint("Equal", 53, 56),
    Sketcher.Constraint("Equal", 56, 59),
    Sketcher.Constraint("Equal", 59, 62),
    Sketcher.Constraint("Equal", 62, 65),
    Sketcher.Constraint("Equal", 65, 68),
    Sketcher.Constraint("Equal", 68, 71),
    Sketcher.Constraint("Equal", 71, 74),
    Sketcher.Constraint("Equal", 74, 77),
    Sketcher.Constraint("Equal", 71, 80),
    Sketcher.Constraint("Equal", 80, 83),
    Sketcher.Constraint("Equal", 83, 86),
    Sketcher.Constraint("Equal", 86, 89),
    Sketcher.Constraint("Symmetric", 2, 2, 45, 2, -1, 1),
    Sketcher.Constraint("Symmetric", 3, 2, 48, 2, -1, 1),
    Sketcher.Constraint("Symmetric", 4, 2, 49, 2, -1, 1),
    Sketcher.Constraint("Symmetric", 6, 2, 51, 2, -1, 1),
    Sketcher.Constraint("Symmetric", 9, 2, 54, 2, -1, 1),
    Sketcher.Constraint("Symmetric", 12, 2, 57, 2, -1, 1),
    Sketcher.Constraint("Symmetric", 15, 2, 60, 2, -1, 1),
    Sketcher.Constraint("Symmetric", 18, 2, 63, 2, -1, 1),
    Sketcher.Constraint("Symmetric", 21, 2, 66, 2, -1, 1),
    Sketcher.Constraint("Symmetric", 24, 2, 69, 2, -1, 1),
    Sketcher.Constraint("Symmetric", 27, 2, 72, 2, -1, 1),
    Sketcher.Constraint("Symmetric", 30, 2, 75, 2, -1, 1),
    Sketcher.Constraint("Symmetric", 33, 2, 78, 2, -1, 1),
    Sketcher.Constraint("Symmetric", 36, 2, 81, 2, -1, 1),
    Sketcher.Constraint("Symmetric", 39, 2, 84, 2, -1, 1),
    Sketcher.Constraint("Symmetric", 42, 2, 87, 2, -1, 1),
    Sketcher.Constraint("Perpendicular", 0, 2),
    Sketcher.Constraint("Perpendicular", 3, 4),
    Sketcher.Constraint("Perpendicular", 6, 7),
    Sketcher.Constraint("Perpendicular", 9, 10),
    Sketcher.Constraint("Perpendicular", 12, 13),
    Sketcher.Constraint("Perpendicular", 15, 16),
    Sketcher.Constraint("Perpendicular", 18, 19),
    Sketcher.Constraint("Perpendicular", 21, 22),
    Sketcher.Constraint("Perpendicular", 24, 25),
    Sketcher.Constraint("Perpendicular", 27, 28),
    Sketcher.Constraint("Perpendicular", 30, 31),
    Sketcher.Constraint("Perpendicular", 33, 34),
    Sketcher.Constraint("Perpendicular", 36, 37),
    Sketcher.Constraint("Perpendicular", 39, 40),
    Sketcher.Constraint("Perpendicular", 42, 43),
    Sketcher.Constraint("Parallel", 2, 45),
    Sketcher.Constraint("Perpendicular", 45, 46),
    Sketcher.Constraint("Perpendicular", 4, 48),
    Sketcher.Constraint("Perpendicular", 7, 51),
    Sketcher.Constraint("Perpendicular", 51, 52),
    Sketcher.Constraint("Perpendicular", 10, 54),
    Sketcher.Constraint("Perpendicular", 54, 55),
    Sketcher.Constraint("Perpendicular", 13, 57),
    Sketcher.Constraint("Perpendicular", 57, 58),
    Sketcher.Constraint("Perpendicular", 16, 60),
    Sketcher.Constraint("Perpendicular", 60, 61),
    Sketcher.Constraint("Perpendicular", 19, 63),
    Sketcher.Constraint("Perpendicular", 63, 64),
    Sketcher.Constraint("Perpendicular", 22, 66),
    Sketcher.Constraint("Perpendicular", 66, 67),
    Sketcher.Constraint("Perpendicular", 25, 69),
    Sketcher.Constraint("Perpendicular", 69, 70),
    Sketcher.Constraint("Perpendicular", 28, 72),
    Sketcher.Constraint("Perpendicular", 72, 73),
    Sketcher.Constraint("Perpendicular", 31, 75),
    Sketcher.Constraint("Perpendicular", 75, 76),
    Sketcher.Constraint("Perpendicular", 34, 78),
    Sketcher.Constraint("Perpendicular", 78, 79),
    Sketcher.Constraint("Perpendicular", 37, 81),
    Sketcher.Constraint("Perpendicular", 81, 82),
    Sketcher.Constraint("Perpendicular", 40, 84),
    Sketcher.Constraint("Perpendicular", 84, 85),
    Sketcher.Constraint("Perpendicular", 43, 87),
    Sketcher.Constraint("Perpendicular", 87, 88),
    Sketcher.Constraint("Equal", 2, 3),
    Sketcher.Constraint("Equal", 0, 4),
    Sketcher.Constraint("Equal", 3, 6),
    Sketcher.Constraint("Equal", 4, 7),
    Sketcher.Constraint("Equal", 6, 9),
    Sketcher.Constraint("Equal", 7, 10),
    Sketcher.Constraint("Equal", 9, 12),
    Sketcher.Constraint("Equal", 10, 13),
    Sketcher.Constraint("Equal", 12, 15),
    Sketcher.Constraint("Equal", 13, 16),
    Sketcher.Constraint("Equal", 15, 18),
    Sketcher.Constraint("Equal", 16, 19),
    Sketcher.Constraint("Equal", 18, 21),
    Sketcher.Constraint("Equal", 19, 22),
    Sketcher.Constraint("Equal", 21, 24),
    Sketcher.Constraint("Equal", 22, 25),
    Sketcher.Constraint("Equal", 24, 27),
    Sketcher.Constraint("Equal", 25, 28),
    Sketcher.Constraint("Equal", 27, 30),
    Sketcher.Constraint("Equal", 28, 31),
    Sketcher.Constraint("Equal", 30, 33),
    Sketcher.Constraint("Equal", 31, 34),
    Sketcher.Constraint("Equal", 33, 36),
    Sketcher.Constraint("Equal", 34, 37),
    Sketcher.Constraint("Equal", 36, 39),
    Sketcher.Constraint("Equal", 37, 40),
    Sketcher.Constraint("Equal", 39, 42),
    Sketcher.Constraint("Equal", 40, 43),
    Sketcher.Constraint("Radius", 1, Q("100 mm")),
    Sketcher.Constraint("Angle", 0, Q("-135 deg")),
    Sketcher.Constraint("Angle", 3, Q("123 deg")),
    Sketcher.Constraint("Angle", 6, Q("111 deg")),
    Sketcher.Constraint("Angle", 9, Q("99 deg")),
    Sketcher.Constraint("Angle", 12, Q("87 deg")),
    Sketcher.Constraint("Angle", 15, Q("75 deg")),
    Sketcher.Constraint("Angle", 18, Q("63 deg")),
    Sketcher.Constraint("Angle", 21, Q("51 deg")),
    Sketcher.Constraint("Angle", 24, Q("39 deg")),
    Sketcher.Constraint("Angle", 27, Q("27 deg")),
    Sketcher.Constraint("Angle", 30, Q("15 deg")),
    Sketcher.Constraint("Angle", 33, Q("3 deg")),
    Sketcher.Constraint("Angle", 36, Q("-9 deg")),
    Sketcher.Constraint("Angle", 39, Q("-21 deg")),
    Sketcher.Constraint("Angle", 42, Q("-33 deg")),
    Sketcher.Constraint("DistanceX", -1, 1, 3, 2, Q("13.199898 mm")),
    Sketcher.Constraint("DistanceX", 0, 2, -1, 1, Q("11.094188 mm")),
])
pad3 = body.newObject("PartDesign::Pad", "Pad002")
pad3.Profile = sketch4
pad3.Length = 99
pad3.Reversed = True

doc.recompute()
